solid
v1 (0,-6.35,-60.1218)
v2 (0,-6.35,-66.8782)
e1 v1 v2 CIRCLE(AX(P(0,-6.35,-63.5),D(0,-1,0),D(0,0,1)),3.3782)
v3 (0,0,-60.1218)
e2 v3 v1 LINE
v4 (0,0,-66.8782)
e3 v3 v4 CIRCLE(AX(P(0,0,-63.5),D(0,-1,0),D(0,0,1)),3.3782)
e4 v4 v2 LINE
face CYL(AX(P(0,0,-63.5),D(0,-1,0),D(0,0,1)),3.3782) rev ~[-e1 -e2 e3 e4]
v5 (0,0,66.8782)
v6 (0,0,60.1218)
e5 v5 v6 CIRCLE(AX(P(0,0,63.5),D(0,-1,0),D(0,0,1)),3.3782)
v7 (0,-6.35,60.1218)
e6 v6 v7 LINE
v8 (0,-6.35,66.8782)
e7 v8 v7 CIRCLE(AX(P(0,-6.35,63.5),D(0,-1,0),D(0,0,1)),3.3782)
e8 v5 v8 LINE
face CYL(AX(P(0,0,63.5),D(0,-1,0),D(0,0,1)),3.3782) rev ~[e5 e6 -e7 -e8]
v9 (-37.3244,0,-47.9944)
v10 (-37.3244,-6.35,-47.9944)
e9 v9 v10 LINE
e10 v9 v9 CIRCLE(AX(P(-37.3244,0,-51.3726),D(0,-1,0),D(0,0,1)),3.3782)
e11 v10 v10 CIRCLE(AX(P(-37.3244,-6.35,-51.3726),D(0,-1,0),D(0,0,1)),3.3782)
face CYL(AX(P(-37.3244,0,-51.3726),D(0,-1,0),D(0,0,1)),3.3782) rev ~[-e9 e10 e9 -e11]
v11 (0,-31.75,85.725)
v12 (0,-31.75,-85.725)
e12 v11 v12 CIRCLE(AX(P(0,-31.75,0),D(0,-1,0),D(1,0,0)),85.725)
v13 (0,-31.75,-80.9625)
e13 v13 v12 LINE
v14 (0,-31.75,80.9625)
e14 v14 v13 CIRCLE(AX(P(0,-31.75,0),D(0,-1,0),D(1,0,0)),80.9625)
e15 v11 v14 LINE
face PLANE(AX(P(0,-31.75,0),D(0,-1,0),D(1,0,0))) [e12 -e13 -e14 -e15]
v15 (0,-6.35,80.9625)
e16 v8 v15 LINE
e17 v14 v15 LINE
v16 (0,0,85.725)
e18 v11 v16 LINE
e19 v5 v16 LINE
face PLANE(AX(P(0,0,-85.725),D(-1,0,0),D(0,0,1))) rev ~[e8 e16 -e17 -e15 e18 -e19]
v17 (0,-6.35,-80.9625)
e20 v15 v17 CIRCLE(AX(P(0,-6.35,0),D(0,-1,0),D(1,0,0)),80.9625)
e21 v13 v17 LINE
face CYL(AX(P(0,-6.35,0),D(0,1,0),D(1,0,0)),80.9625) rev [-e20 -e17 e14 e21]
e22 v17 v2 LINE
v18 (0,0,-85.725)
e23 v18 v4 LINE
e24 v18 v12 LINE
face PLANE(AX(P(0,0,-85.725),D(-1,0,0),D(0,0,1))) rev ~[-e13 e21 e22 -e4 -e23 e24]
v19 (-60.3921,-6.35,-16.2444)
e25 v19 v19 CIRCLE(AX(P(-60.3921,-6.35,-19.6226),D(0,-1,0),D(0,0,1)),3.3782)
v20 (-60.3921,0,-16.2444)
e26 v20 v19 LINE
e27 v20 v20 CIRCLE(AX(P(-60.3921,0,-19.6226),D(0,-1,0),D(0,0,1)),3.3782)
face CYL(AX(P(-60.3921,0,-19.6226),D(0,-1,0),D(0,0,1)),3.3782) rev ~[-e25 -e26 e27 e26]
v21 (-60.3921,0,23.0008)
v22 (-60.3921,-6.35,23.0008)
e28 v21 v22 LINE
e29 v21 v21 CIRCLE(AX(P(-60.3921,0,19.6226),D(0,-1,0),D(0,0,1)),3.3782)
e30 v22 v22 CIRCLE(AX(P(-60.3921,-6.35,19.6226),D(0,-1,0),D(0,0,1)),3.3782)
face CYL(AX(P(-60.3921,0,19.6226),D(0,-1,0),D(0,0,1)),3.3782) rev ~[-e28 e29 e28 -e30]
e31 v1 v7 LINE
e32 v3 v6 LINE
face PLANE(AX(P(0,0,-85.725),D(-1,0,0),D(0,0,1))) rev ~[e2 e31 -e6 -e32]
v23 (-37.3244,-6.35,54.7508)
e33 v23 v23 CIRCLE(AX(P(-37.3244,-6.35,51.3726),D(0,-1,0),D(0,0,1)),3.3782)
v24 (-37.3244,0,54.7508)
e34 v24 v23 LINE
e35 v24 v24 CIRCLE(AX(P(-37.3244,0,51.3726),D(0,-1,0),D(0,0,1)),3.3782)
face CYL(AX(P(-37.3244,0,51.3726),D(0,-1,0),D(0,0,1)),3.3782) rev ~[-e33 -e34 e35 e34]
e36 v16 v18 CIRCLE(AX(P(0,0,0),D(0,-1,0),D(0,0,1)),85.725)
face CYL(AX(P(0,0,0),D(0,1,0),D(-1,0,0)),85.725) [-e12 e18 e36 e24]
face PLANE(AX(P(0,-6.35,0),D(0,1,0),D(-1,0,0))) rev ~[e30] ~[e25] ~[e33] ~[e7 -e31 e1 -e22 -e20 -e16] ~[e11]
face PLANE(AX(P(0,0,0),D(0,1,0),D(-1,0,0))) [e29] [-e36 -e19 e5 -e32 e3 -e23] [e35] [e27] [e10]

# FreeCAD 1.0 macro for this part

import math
import FreeCAD as App
import Part
import Sketcher

V = App.Vector
Q = App.Units.Quantity

doc = App.newDocument("Part")
body = doc.addObject("PartDesign::Body", "Body")

sketch1 = body.newObject("Sketcher::SketchObject", "Sketch")
sketch1.AttachmentSupport = (doc.getObject("XZ_Plane"), [""])
sketch1.MapMode = "FlatFace"
sketch1.addGeometry(Part.Circle(V(0, 0, 0), V(0, 0, 1), 86), False)
sketch1.addConstraint(Sketcher.Constraint("Coincident", 0, 3, -1, 1))
sketch1.addConstraint(Sketcher.Constraint("Diameter", 0, Q("6.75 in")))
pad1 = body.newObject("PartDesign::Pad", "Pad")
pad1.Profile = sketch1
pad1.Length = Q("0.25 in")

sketch2 = body.newObject("Sketcher::SketchObject", "Sketch001")
sketch2.AttachmentSupport = (doc.getObject("XZ_Plane"), [""])
sketch2.MapMode = "FlatFace"
sketch2.AttachmentOffset = App.Placement(V(0, 0, 0.25 * 25.4), App.Rotation())
sketch2.addGeometry(Part.Circle(V(0, 0, 0), V(0, 0, 1), 86), False)
sketch2.addGeometry(Part.Circle(V(0, 0, 0), V(0, 0, 1), 81), False)
sketch2.addConstraint(Sketcher.Constraint("Coincident", 0, 3, -1, 1))
sketch2.addConstraint(Sketcher.Constraint("Coincident", 1, 3, -1, 1))
sketch2.addConstraint(Sketcher.Constraint("Diameter", 1, Q("6.375 in")))
sketch2.addConstraint(Sketcher.Constraint("Diameter", 0, Q("6.75 in")))
pad2 = body.newObject("PartDesign::Pad", "Pad001")
pad2.Profile = sketch2
pad2.Length = Q("1 in")

sketch3 = body.newObject("Sketcher::SketchObject", "Sketch002")
sketch3.AttachmentSupport = (doc.getObject("XZ_Plane"), [""])
sketch3.MapMode = "FlatFace"
sketch3.addGeometry(Part.LineSegment(V(0, -86, 0), V(0, 86, 0)), False)
sketch3.addGeometry(Part.ArcOfCircle(Part.Circle(V(0, 0, 0), V(0, 0, 1), 86), math.radians(-90), math.radians(90)), False)
sketch3.addConstraint(Sketcher.Constraint("Coincident", 0, 1, 1, 1))
sketch3.addConstraint(Sketcher.Constraint("Coincident", 1, 2, 0, 2))
sketch3.addConstraint(Sketcher.Constraint("Vertical", 0))
sketch3.addConstraint(Sketcher.Constraint("Coincident", 1, 3, -1, 1))
sketch3.addConstraint(Sketcher.Constraint("PointOnObject", 0, 1, -2))
sketch3.addConstraint(Sketcher.Constraint("Radius", 1, Q("3.375 in")))
pocket1 = body.newObject("PartDesign::Pocket", "Pocket")
pocket1.Profile = sketch3
pocket1.Type = "ThroughAll"
pocket1.Reversed = True

sketch4 = body.newObject("Sketcher::SketchObject", "Sketch003")
sketch4.AttachmentSupport = (doc.getObject("XZ_Plane"), [""])
sketch4.MapMode = "FlatFace"
sketch4.addGeometry(Part.Circle(V(-37.3, 51.4, 0), V(0, 0, 1), 3.4), False)
sketch4.addGeometry(Part.Circle(V(-60.4, 19.6, 0), V(0, 0, 1), 3.4), False)
sketch4.addGeometry(Part.Circle(V(-60.4, -19.6, 0), V(0, 0, 1), 3.4), False)
sketch4.addGeometry(Part.Circle(V(-37.3, -51.4, 0), V(0, 0, 1), 3.4), False)
sketch4.addGeometry(Part.Circle(V(0, -63.5, 0), V(0, 0, 1), 3.4), False)
sketch4.addGeometry(Part.Circle(V(37.3, -51.4, 0), V(0, 0, 1), 3.4), False)
sketch4.addGeometry(Part.Circle(V(60.4, -19.6, 0), V(0, 0, 1), 3.4), False)
sketch4.addGeometry(Part.Circle(V(60.4, 19.6, 0), V(0, 0, 1), 3.4), False)
sketch4.addGeometry(Part.Circle(V(37.3, 51.4, 0), V(0, 0, 1), 3.4), False)
sketch4.addGeometry(Part.Circle(V(0, 63.5, 0), V(0, 0, 1), 3.4), False)
sketch4.addConstraint(Sketcher.Constraint("Equal", 0, 1))
sketch4.addConstraint(Sketcher.Constraint("Equal", 1, 2))
sketch4.addConstraint(Sketcher.Constraint("Equal", 2, 3))
sketch4.addConstraint(Sketcher.Constraint("Equal", 3, 4))
sketch4.addConstraint(Sketcher.Constraint("Equal", 4, 5))
sketch4.addConstraint(Sketcher.Constraint("Equal", 5, 6))
sketch4.addConstraint(Sketcher.Constraint("Equal", 6, 7))
sketch4.addConstraint(Sketcher.Constraint("Equal", 7, 8))
sketch4.addConstraint(Sketcher.Constraint("Equal", 8, 9))
sketch4.addConstraint(Sketcher.Constraint("Symmetric", 0, 3, 5, 3, -1, 1))
sketch4.addConstraint(Sketcher.Constraint("Symmetric", 1, 3, 6, 3, -1, 1))
sketch4.addConstraint(Sketcher.Constraint("Symmetric", 2, 3, 7, 3, -1, 1))
sketch4.addConstraint(Sketcher.Constraint("Symmetric", 3, 3, 8, 3, -1, 1))
sketch4.addConstraint(Sketcher.Constraint("Symmetric", 4, 3, 9, 3, -1, 1))
sketch4.addConstraint(Sketcher.Constraint("Symmetric", 3, 3, 5, 3, -2))
sketch4.addConstraint(Sketcher.Constraint("Symmetric", 2, 3, 6, 3, -2))
sketch4.addConstraint(Sketcher.Constraint("PointOnObject", 4, 3, -2))
sketch4.addConstraint(Sketcher.Constraint("Diameter", 0, Q("0.266 in")))
sketch4.addConstraint(Sketcher.Constraint("DistanceY", 4, 3, -1, 1, Q("2.5 in")))
sketch4.addConstraint(Sketcher.Constraint("DistanceY", 1, 3, 0, 3, Q("1.25 in")))
sketch4.addConstraint(Sketcher.Constraint("DistanceX", 2, 3, 5, 3, Q("3.8471 in")))
sketch4.addConstraint(Sketcher.Constraint("DistanceX", 0, 3, -1, 1, Q("37.3244 mm")))
sketch4.addConstraint(Sketcher.Constraint("DistanceY", -1, 1, 0, 3, Q("51.3726 mm")))
doc.recompute()
hole = body.newObject("PartDesign::Hole", "Hole")
hole.Profile = sketch4
hole.ThreadType = "None"
hole.Diameter = Q("0.266 in")
hole.DepthType = "ThroughAll"
hole.Reversed = True

doc.recompute()
